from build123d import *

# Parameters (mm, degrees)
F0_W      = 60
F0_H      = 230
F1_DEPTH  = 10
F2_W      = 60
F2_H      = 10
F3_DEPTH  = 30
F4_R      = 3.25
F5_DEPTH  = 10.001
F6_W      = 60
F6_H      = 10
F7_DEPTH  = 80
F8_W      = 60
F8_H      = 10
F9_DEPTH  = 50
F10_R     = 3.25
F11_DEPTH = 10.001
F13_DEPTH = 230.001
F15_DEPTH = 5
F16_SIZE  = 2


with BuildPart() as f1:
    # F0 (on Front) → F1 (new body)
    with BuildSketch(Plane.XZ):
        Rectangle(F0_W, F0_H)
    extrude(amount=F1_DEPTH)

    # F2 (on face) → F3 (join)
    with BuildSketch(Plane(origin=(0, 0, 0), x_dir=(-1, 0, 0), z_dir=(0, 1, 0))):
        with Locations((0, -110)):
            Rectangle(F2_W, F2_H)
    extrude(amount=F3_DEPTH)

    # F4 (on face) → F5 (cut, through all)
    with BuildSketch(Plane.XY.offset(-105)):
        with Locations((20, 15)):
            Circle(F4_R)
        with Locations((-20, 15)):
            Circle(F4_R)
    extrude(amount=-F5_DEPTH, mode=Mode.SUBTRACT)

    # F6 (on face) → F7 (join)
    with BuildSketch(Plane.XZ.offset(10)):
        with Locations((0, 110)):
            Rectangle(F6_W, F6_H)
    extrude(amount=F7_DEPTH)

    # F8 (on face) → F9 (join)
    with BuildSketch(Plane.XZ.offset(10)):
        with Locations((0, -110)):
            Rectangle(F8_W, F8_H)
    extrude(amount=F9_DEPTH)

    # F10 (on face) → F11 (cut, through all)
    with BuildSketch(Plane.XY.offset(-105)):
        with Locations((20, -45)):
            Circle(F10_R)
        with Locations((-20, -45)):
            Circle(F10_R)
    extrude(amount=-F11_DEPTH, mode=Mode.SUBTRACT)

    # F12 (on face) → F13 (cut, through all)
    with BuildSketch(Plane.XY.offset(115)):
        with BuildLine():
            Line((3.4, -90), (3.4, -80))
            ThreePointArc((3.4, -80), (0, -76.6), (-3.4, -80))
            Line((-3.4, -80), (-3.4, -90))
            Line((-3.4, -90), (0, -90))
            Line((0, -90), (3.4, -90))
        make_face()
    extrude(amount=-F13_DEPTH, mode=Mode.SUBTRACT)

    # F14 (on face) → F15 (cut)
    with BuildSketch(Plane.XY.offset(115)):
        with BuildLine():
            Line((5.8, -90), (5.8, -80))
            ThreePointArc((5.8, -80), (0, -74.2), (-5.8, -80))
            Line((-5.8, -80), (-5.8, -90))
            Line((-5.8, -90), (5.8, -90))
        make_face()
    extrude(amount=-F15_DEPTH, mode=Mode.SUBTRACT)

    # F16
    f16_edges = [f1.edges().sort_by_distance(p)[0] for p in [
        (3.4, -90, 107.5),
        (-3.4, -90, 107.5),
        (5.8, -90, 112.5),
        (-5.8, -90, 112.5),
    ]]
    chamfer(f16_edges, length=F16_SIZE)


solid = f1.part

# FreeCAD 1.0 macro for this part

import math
import FreeCAD as App
import Part
import Sketcher

V = App.Vector
Q = App.Units.Quantity


def edges_at(feature, points):
    """Names of the edges that pass closest to the given points."""
    edges = feature.Shape.Edges
    near = lambda p: min(range(len(edges)), key=lambda i: edges[i].distToShape(Part.Vertex(*p))[0])
    return sorted({f"Edge{near(p) + 1}" for p in points})


def add_polygon(sketch, points):
    """Adds a closed chain of lines whose ends are joined by coincident constraints."""
    first, n = sketch.GeometryCount, len(points)
    for a, b in zip(points, points[1:] + points[:1]):
        sketch.addGeometry(Part.LineSegment(App.Vector(*a, 0), App.Vector(*b, 0)), False)
    for i in range(n):
        sketch.addConstraint(Sketcher.Constraint("Coincident", first + i, 2, first + (i + 1) % n, 1))

doc = App.newDocument("Part")
params = doc.addObject("Spreadsheet::Sheet", "Params")
for row, (alias, value) in enumerate([
    ("sketch1_width", "60 mm"),
    ("sketch1_height", "230 mm"),
    ("pad1_length", "10 mm"),
    ("sketch2_width", "60 mm"),
    ("sketch2_height", "10 mm"),
    ("pad2_length", "30 mm"),
    ("sketch3_diameter", "6.5 mm"),
    ("sketch4_width", "60 mm"),
    ("sketch4_height", "10 mm"),
    ("pad3_length", "80 mm"),
    ("sketch5_width", "60 mm"),
    ("sketch5_height", "10 mm"),
    ("pad4_length", "50 mm"),
    ("sketch6_diameter", "6.5 mm"),
    ("sketch7_radius", "3.4 mm"),
    ("sketch7_height", "10 mm"),
    ("sketch8_radius", "5.8 mm"),
    ("sketch8_height", "10 mm"),
    ("pocket4_length", "5 mm"),
    ("chamfer_size", "2 mm"),
], start=1):
    params.set(f"A{row}", alias)
    params.set(f"B{row}", "=" + value)
    params.setAlias(f"B{row}", alias)

body = doc.addObject("PartDesign::Body", "Body")

sketch1 = body.newObject("Sketcher::SketchObject", "Sketch")
sketch1.AttachmentSupport = (doc.getObject("XZ_Plane"), [""])
sketch1.MapMode = "FlatFace"
add_polygon(sketch1, [(-30, 115), (-30, -115), (30, -115), (30, 115)])
sketch1.addConstraint(Sketcher.Constraint("Vertical", 0))
sketch1.addConstraint(Sketcher.Constraint("Horizontal", 1))
sketch1.addConstraint(Sketcher.Constraint("Vertical", 2))
sketch1.addConstraint(Sketcher.Constraint("Horizontal", 3))
sketch1.addConstraint(Sketcher.Constraint("Symmetric", 0, 2, 2, 2, -1, 1))
sketch1.addConstraint(Sketcher.Constraint("DistanceX", 1, 1, 1, 2, Q("60 mm")))
sketch1.addConstraint(Sketcher.Constraint("DistanceY", 0, 2, 0, 1, Q("230 mm")))
sketch1.setExpression("Constraints[9]", "Params.sketch1_width")
sketch1.setExpression("Constraints[10]", "Params.sketch1_height")
pad1 = body.newObject("PartDesign::Pad", "Pad")
pad1.Profile = sketch1
pad1.setExpression("Length", "Params.pad1_length")

sketch2 = body.newObject("Sketcher::SketchObject", "Sketch001")
sketch2.AttachmentSupport = (doc.getObject("XZ_Plane"), [""])
sketch2.MapMode = "FlatFace"
add_polygon(sketch2, [(30, -105), (30, -115), (-30, -115), (-30, -105)])
sketch2.addConstraint(Sketcher.Constraint("Vertical", 0))
sketch2.addConstraint(Sketcher.Constraint("Horizontal", 1))
sketch2.addConstraint(Sketcher.Constraint("Vertical", 2))
sketch2.addConstraint(Sketcher.Constraint("Horizontal", 3))
sketch2.addConstraint(Sketcher.Constraint("DistanceX", 1, 2, 1, 1, Q("60 mm")))
sketch2.addConstraint(Sketcher.Constraint("DistanceY", 0, 2, 0, 1, Q("10 mm")))
sketch2.addConstraint(Sketcher.Constraint("DistanceX", -1, 1, 0, 2, Q("30 mm")))
sketch2.addConstraint(Sketcher.Constraint("DistanceY", 0, 2, -1, 1, Q("115 mm")))
sketch2.setExpression("Constraints[8]", "Params.sketch2_width")
sketch2.setExpression("Constraints[9]", "Params.sketch2_height")
pad2 = body.newObject("PartDesign::Pad", "Pad001")
pad2.Profile = sketch2
pad2.setExpression("Length", "Params.pad2_length")
pad2.Reversed = True

sketch3 = body.newObject("Sketcher::SketchObject", "Sketch002")
sketch3.AttachmentSupport = (doc.getObject("XY_Plane"), [""])
sketch3.MapMode = "FlatFace"
sketch3.AttachmentOffset = App.Placement(V(0, 0, -105), App.Rotation())
sketch3.addGeometry(Part.Circle(V(20, 15, 0), V(0, 0, 1), 3.2), False)
sketch3.addGeometry(Part.Circle(V(-20, 15, 0), V(0, 0, 1), 3.2), False)
sketch3.addConstraint(Sketcher.Constraint("Equal", 0, 1))
sketch3.addConstraint(Sketcher.Constraint("Symmetric", 0, 3, 1, 3, -2))
sketch3.addConstraint(Sketcher.Constraint("Diameter", 0, Q("6.5 mm")))
sketch3.addConstraint(Sketcher.Constraint("DistanceX", -1, 1, 0, 3, Q("20 mm")))
sketch3.addConstraint(Sketcher.Constraint("DistanceY", -1, 1, 0, 3, Q("15 mm")))
sketch3.setExpression("Constraints[2]", "Params.sketch3_diameter")
pocket1 = body.newObject("PartDesign::Pocket", "Pocket")
pocket1.Profile = sketch3
pocket1.Type = "ThroughAll"

sketch4 = body.newObject("Sketcher::SketchObject", "Sketch003")
sketch4.AttachmentSupport = (doc.getObject("XZ_Plane"), [""])
sketch4.MapMode = "FlatFace"
sketch4.AttachmentOffset = App.Placement(V(0, 0, 10), App.Rotation())
add_polygon(sketch4, [(-30, 115), (-30, 105), (30, 105), (30, 115)])
sketch4.addConstraint(Sketcher.Constraint("Vertical", 0))
sketch4.addConstraint(Sketcher.Constraint("Horizontal", 1))
sketch4.addConstraint(Sketcher.Constraint("Vertical", 2))
sketch4.addConstraint(Sketcher.Constraint("Horizontal", 3))
sketch4.addConstraint(Sketcher.Constraint("DistanceX", 1, 1, 1, 2, Q("60 mm")))
sketch4.addConstraint(Sketcher.Constraint("DistanceY", 0, 2, 0, 1, Q("10 mm")))
sketch4.addConstraint(Sketcher.Constraint("DistanceX", 0, 2, -1, 1, Q("30 mm")))
sketch4.addConstraint(Sketcher.Constraint("DistanceY", -1, 1, 0, 2, Q("105 mm")))
sketch4.setExpression("Constraints[8]", "Params.sketch4_width")
sketch4.setExpression("Constraints[9]", "Params.sketch4_height")
pad3 = body.newObject("PartDesign::Pad", "Pad002")
pad3.Profile = sketch4
pad3.setExpression("Length", "Params.pad3_length")

sketch5 = body.newObject("Sketcher::SketchObject", "Sketch004")
sketch5.AttachmentSupport = (doc.getObject("XZ_Plane"), [""])
sketch5.MapMode = "FlatFace"
sketch5.AttachmentOffset = App.Placement(V(0, 0, 10), App.Rotation())
add_polygon(sketch5, [(-30, -105), (-30, -115), (30, -115), (30, -105)])
sketch5.addConstraint(Sketcher.Constraint("Vertical", 0))
sketch5.addConstraint(Sketcher.Constraint("Horizontal", 1))
sketch5.addConstraint(Sketcher.Constraint("Vertical", 2))
sketch5.addConstraint(Sketcher.Constraint("Horizontal", 3))
sketch5.addConstraint(Sketcher.Constraint("DistanceX", 1, 1, 1, 2, Q("60 mm")))
sketch5.addConstraint(Sketcher.Constraint("DistanceY", 0, 2, 0, 1, Q("10 mm")))
sketch5.addConstraint(Sketcher.Constraint("DistanceX", 0, 2, -1, 1, Q("30 mm")))
sketch5.addConstraint(Sketcher.Constraint("DistanceY", 0, 2, -1, 1, Q("115 mm")))
sketch5.setExpression("Constraints[8]", "Params.sketch5_width")
sketch5.setExpression("Constraints[9]", "Params.sketch5_height")
pad4 = body.newObject("PartDesign::Pad", "Pad003")
pad4.Profile = sketch5
pad4.setExpression("Length", "Params.pad4_length")

sketch6 = body.newObject("Sketcher::SketchObject", "Sketch005")
sketch6.AttachmentSupport = (doc.getObject("XY_Plane"), [""])
sketch6.MapMode = "FlatFace"
sketch6.AttachmentOffset = App.Placement(V(0, 0, -105), App.Rotation())
sketch6.addGeometry(Part.Circle(V(20, -45, 0), V(0, 0, 1), 3.2), False)
sketch6.addGeometry(Part.Circle(V(-20, -45, 0), V(0, 0, 1), 3.2), False)
sketch6.addConstraint(Sketcher.Constraint("Equal", 0, 1))
sketch6.addConstraint(Sketcher.Constraint("Symmetric", 0, 3, 1, 3, -2))
sketch6.addConstraint(Sketcher.Constraint("Diameter", 0, Q("6.5 mm")))
sketch6.addConstraint(Sketcher.Constraint("DistanceX", -1, 1, 0, 3, Q("20 mm")))
sketch6.addConstraint(Sketcher.Constraint("DistanceY", 0, 3, -1, 1, Q("45 mm")))
sketch6.setExpression("Constraints[2]", "Params.sketch6_diameter")
pocket2 = body.newObject("PartDesign::Pocket", "Pocket001")
pocket2.Profile = sketch6
pocket2.Type = "ThroughAll"

sketch7 = body.newObject("Sketcher::SketchObject", "Sketch006")
sketch7.AttachmentSupport = (doc.getObject("XY_Plane"), [""])
sketch7.MapMode = "FlatFace"
sketch7.AttachmentOffset = App.Placement(V(0, 0, 115), App.Rotation())
sketch7.addGeometry(Part.LineSegment(V(3.4, -90, 0), V(3.4, -80, 0)), False)
sketch7.addGeometry(Part.ArcOfCircle(Part.Circle(V(0, -80, 0), V(0, 0, 1), 3.4), math.radians(0), math.radians(180)), False)
sketch7.addGeometry(Part.LineSegment(V(-3.4, -80, 0), V(-3.4, -90, 0)), False)
sketch7.addGeometry(Part.LineSegment(V(-3.4, -90, 0), V(3.4, -90, 0)), False)
sketch7.addConstraint(Sketcher.Constraint("Tangent", 0, 2, 1, 1))
sketch7.addConstraint(Sketcher.Constraint("Tangent", 1, 2, 2, 1))
sketch7.addConstraint(Sketcher.Constraint("Coincident", 2, 2, 3, 1))
sketch7.addConstraint(Sketcher.Constraint("Coincident", 3, 2, 0, 1))
sketch7.addConstraint(Sketcher.Constraint("Vertical", 0))
sketch7.addConstraint(Sketcher.Constraint("Vertical", 2))
sketch7.addConstraint(Sketcher.Constraint("Horizontal", 3))
sketch7.addConstraint(Sketcher.Constraint("PointOnObject", 1, 3, -2))
sketch7.addConstraint(Sketcher.Constraint("Radius", 1, Q("3.4 mm")))
sketch7.addConstraint(Sketcher.Constraint("DistanceY", 0, 1, 0, 2, Q("10 mm")))
sketch7.addConstraint(Sketcher.Constraint("DistanceY", 1, 3, -1, 1, Q("80 mm")))
sketch7.setExpression("Constraints[8]", "Params.sketch7_radius")
sketch7.setExpression("Constraints[9]", "Params.sketch7_height")
pocket3 = body.newObject("PartDesign::Pocket", "Pocket002")
pocket3.Profile = sketch7
pocket3.Type = "ThroughAll"

sketch8 = body.newObject("Sketcher::SketchObject", "Sketch007")
sketch8.AttachmentSupport = (doc.getObject("XY_Plane"), [""])
sketch8.MapMode = "FlatFace"
sketch8.AttachmentOffset = App.Placement(V(0, 0, 115), App.Rotation())
sketch8.addGeometry(Part.LineSegment(V(6, -90, 0), V(6, -80, 0)), False)
sketch8.addGeometry(Part.ArcOfCircle(Part.Circle(V(0, -80, 0), V(0, 0, 1), 6), math.radians(0), math.radians(180)), False)
sketch8.addGeometry(Part.LineSegment(V(-6, -80, 0), V(-6, -90, 0)), False)
sketch8.addGeometry(Part.LineSegment(V(-6, -90, 0), V(6, -90, 0)), False)
sketch8.addConstraint(Sketcher.Constraint("Tangent", 0, 2, 1, 1))
sketch8.addConstraint(Sketcher.Constraint("Tangent", 1, 2, 2, 1))
sketch8.addConstraint(Sketcher.Constraint("Coincident", 2, 2, 3, 1))
sketch8.addConstraint(Sketcher.Constraint("Coincident", 3, 2, 0, 1))
sketch8.addConstraint(Sketcher.Constraint("Vertical", 0))
sketch8.addConstraint(Sketcher.Constraint("Vertical", 2))
sketch8.addConstraint(Sketcher.Constraint("Horizontal", 3))
sketch8.addConstraint(Sketcher.Constraint("PointOnObject", 1, 3, -2))
sketch8.addConstraint(Sketcher.Constraint("Radius", 1, Q("5.8 mm")))
sketch8.addConstraint(Sketcher.Constraint("DistanceY", 0, 1, 0, 2, Q("10 mm")))
sketch8.addConstraint(Sketcher.Constraint("DistanceY", 1, 3, -1, 1, Q("80 mm")))
sketch8.setExpression("Constraints[8]", "Params.sketch8_radius")
sketch8.setExpression("Constraints[9]", "Params.sketch8_height")
pocket4 = body.newObject("PartDesign::Pocket", "Pocket003")
pocket4.Profile = sketch8
pocket4.setExpression("Length", "Params.pocket4_length")
doc.recompute()

chamfer = body.newObject("PartDesign::Chamfer", "Chamfer")
chamfer.Base = (pocket4, edges_at(pocket4, [
    (3.4, -90, 107.5),
    (-3.4, -90, 107.5),
    (5.8, -90, 112.5),
    (-5.8, -90, 112.5),
]))
chamfer.setExpression("Size", "Params.chamfer_size")

doc.recompute()
